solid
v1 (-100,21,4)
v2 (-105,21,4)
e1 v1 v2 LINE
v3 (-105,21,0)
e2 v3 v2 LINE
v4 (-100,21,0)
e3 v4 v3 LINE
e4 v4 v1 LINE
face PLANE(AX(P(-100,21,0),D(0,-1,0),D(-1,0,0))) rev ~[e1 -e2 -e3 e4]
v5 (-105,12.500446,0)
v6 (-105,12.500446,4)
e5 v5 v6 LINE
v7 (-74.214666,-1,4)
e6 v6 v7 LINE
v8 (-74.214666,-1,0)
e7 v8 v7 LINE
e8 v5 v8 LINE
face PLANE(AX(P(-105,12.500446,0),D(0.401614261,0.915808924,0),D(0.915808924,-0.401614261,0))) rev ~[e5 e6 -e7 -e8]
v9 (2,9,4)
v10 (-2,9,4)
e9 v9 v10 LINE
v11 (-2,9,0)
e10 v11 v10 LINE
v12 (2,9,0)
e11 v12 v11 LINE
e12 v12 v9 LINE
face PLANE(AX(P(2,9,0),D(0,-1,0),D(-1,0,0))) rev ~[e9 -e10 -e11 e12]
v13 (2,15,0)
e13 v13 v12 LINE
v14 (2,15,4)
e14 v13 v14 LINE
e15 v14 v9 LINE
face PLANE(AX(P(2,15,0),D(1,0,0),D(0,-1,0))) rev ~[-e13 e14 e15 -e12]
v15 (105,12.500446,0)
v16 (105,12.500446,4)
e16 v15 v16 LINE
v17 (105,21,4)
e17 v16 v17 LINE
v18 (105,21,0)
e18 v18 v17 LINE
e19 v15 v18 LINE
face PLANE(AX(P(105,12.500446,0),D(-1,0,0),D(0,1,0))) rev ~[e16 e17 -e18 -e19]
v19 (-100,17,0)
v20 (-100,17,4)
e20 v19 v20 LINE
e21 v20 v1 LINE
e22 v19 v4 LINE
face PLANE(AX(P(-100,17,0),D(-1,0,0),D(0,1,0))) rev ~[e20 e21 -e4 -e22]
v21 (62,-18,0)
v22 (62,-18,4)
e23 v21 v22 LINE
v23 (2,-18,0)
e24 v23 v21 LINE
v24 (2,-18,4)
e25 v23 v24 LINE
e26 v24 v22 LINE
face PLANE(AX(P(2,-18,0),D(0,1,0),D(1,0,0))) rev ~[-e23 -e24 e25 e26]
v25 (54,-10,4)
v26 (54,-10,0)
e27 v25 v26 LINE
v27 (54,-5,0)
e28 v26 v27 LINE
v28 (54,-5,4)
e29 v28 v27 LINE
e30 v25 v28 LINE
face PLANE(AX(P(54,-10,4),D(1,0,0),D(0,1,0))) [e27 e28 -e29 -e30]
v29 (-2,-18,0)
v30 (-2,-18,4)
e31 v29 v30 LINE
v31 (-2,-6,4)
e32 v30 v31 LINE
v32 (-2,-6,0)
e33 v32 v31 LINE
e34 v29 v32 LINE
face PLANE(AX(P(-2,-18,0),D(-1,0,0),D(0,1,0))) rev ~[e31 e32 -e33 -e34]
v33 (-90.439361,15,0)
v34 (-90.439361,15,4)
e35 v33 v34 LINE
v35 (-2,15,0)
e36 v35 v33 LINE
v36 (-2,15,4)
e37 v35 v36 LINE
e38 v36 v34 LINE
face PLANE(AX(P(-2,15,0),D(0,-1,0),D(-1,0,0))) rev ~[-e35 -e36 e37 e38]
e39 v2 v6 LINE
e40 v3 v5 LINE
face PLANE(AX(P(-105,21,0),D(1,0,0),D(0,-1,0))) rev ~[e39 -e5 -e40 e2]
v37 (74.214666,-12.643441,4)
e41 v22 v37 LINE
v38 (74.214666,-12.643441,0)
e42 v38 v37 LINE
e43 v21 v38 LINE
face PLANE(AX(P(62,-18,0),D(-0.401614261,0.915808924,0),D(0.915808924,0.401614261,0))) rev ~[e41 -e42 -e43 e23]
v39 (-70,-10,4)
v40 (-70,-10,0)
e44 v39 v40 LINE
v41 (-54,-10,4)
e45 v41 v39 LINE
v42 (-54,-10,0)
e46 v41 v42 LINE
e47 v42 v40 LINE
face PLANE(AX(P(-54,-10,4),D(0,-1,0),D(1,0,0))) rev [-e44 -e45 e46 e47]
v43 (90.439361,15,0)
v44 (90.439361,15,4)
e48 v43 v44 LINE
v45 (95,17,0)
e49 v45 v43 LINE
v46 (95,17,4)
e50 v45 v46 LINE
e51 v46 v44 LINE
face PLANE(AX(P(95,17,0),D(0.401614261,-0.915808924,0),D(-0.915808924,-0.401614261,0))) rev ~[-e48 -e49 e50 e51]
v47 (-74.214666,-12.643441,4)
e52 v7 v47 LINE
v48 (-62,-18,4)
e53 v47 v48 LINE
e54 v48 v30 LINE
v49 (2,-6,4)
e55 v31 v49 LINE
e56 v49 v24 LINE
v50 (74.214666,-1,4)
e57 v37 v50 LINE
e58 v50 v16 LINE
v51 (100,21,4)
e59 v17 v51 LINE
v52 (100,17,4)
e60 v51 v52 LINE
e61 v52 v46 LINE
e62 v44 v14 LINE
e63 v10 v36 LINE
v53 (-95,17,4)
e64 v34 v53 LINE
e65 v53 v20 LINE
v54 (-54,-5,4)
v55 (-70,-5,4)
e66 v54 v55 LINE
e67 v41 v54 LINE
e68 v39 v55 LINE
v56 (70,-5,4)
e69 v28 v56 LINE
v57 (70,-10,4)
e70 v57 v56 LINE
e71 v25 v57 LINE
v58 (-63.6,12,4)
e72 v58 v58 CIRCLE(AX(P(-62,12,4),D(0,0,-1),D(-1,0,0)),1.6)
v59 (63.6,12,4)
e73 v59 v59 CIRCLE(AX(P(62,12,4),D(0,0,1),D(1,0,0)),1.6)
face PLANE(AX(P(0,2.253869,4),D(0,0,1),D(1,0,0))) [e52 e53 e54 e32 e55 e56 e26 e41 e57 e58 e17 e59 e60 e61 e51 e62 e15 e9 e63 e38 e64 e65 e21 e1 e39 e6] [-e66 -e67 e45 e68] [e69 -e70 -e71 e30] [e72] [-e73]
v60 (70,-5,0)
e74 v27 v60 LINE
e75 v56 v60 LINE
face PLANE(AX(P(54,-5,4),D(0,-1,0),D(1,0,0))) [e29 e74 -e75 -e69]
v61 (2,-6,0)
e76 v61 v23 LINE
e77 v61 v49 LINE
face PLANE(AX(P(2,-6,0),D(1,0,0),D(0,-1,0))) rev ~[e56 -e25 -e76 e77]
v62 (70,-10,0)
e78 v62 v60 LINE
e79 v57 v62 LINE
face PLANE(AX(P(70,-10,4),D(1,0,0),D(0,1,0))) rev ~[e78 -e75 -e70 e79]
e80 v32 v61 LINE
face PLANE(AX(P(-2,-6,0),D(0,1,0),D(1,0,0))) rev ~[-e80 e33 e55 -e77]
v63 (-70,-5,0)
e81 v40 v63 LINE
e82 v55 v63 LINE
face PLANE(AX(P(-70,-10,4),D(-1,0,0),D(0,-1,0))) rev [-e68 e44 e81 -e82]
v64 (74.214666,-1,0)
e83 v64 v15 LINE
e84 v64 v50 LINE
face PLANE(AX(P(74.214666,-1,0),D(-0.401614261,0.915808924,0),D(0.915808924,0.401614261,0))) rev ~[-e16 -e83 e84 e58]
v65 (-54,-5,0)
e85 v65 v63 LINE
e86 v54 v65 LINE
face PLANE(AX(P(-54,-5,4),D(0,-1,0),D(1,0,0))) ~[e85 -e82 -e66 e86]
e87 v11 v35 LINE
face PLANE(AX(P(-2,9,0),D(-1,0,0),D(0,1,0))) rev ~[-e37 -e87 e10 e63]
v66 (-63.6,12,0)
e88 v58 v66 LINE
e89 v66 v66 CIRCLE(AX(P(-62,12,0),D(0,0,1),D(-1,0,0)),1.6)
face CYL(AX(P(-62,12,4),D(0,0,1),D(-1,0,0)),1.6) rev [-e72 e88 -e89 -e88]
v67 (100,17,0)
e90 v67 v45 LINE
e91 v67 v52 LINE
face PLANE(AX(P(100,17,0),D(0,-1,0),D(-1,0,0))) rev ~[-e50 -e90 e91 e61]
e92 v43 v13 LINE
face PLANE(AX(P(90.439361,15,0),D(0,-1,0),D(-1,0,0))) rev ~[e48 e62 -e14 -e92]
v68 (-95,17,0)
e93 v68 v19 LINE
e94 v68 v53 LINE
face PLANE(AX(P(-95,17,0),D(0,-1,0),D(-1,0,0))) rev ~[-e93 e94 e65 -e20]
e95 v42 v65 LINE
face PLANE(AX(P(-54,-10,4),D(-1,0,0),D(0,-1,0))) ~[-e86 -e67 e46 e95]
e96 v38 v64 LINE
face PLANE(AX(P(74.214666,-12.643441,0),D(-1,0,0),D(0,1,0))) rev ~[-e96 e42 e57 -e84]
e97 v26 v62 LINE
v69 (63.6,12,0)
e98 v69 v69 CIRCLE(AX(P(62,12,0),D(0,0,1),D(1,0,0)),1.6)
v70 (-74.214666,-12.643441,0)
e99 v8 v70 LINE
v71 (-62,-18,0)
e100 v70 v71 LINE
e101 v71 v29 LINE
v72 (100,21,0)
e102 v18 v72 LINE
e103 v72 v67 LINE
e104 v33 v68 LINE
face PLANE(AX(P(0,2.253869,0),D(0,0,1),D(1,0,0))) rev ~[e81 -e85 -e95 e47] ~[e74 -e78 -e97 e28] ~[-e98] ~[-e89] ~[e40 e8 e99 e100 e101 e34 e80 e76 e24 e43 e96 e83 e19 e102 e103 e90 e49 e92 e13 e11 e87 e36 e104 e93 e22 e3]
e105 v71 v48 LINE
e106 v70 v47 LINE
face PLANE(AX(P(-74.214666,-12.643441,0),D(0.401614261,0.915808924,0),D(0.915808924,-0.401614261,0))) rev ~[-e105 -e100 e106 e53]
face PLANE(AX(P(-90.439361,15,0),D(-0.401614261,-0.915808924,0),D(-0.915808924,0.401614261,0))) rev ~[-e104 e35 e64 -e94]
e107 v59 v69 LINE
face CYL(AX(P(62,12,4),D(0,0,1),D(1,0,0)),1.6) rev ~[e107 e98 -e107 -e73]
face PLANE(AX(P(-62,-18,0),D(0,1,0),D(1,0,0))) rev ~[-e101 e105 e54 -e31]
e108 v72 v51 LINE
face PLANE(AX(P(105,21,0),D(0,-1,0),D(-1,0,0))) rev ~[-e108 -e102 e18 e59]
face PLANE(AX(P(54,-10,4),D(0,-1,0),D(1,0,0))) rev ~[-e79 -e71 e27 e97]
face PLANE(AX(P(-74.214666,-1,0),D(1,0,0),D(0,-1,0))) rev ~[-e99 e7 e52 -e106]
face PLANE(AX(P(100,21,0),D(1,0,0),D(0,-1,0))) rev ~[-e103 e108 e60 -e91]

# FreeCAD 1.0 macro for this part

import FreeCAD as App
import Part
import Sketcher

doc = App.newDocument("Part")
body = doc.addObject("PartDesign::Body", "Body")

# Sketch on XY plane
sketch1 = doc.addObject("Sketcher::SketchObject", "Sketch")
body.addObject(sketch1)
sketch1.AttachmentSupport = (doc.XY_Plane, [""])
sketch1.MapMode = "FlatFace"
sketch1.addGeometry([
    Part.LineSegment(App.Vector(-95, 17, 0), App.Vector(-100, 17, 0)),  # 0
    Part.LineSegment(App.Vector(-100, 17, 0), App.Vector(-100, 21, 0)),  # 1
    Part.LineSegment(App.Vector(-100, 21, 0), App.Vector(-105, 21, 0)),  # 2
    Part.LineSegment(App.Vector(-105, 21, 0), App.Vector(-105, 12.5, 0)),  # 3
    Part.LineSegment(App.Vector(-105, 12.5, 0), App.Vector(-74.2, -1, 0)),  # 4
    Part.LineSegment(App.Vector(-74.2, -1, 0), App.Vector(-74.2, -12.6, 0)),  # 5
    Part.LineSegment(App.Vector(-74.2, -12.6, 0), App.Vector(-62, -18, 0)),  # 6
    Part.LineSegment(App.Vector(-62, -18, 0), App.Vector(-2, -18, 0)),  # 7
    Part.LineSegment(App.Vector(-2, -18, 0), App.Vector(-2, -6, 0)),  # 8
    Part.LineSegment(App.Vector(-2, -6, 0), App.Vector(2, -6, 0)),  # 9
    Part.LineSegment(App.Vector(2, -6, 0), App.Vector(2, -18, 0)),  # 10
    Part.LineSegment(App.Vector(2, -18, 0), App.Vector(62, -18, 0)),  # 11
    Part.LineSegment(App.Vector(62, -18, 0), App.Vector(74.2, -12.6, 0)),  # 12
    Part.LineSegment(App.Vector(74.2, -12.6, 0), App.Vector(74.2, -1, 0)),  # 13
    Part.LineSegment(App.Vector(74.2, -1, 0), App.Vector(105, 12.5, 0)),  # 14
    Part.LineSegment(App.Vector(105, 12.5, 0), App.Vector(105, 21, 0)),  # 15
    Part.LineSegment(App.Vector(105, 21, 0), App.Vector(100, 21, 0)),  # 16
    Part.LineSegment(App.Vector(100, 21, 0), App.Vector(100, 17, 0)),  # 17
    Part.LineSegment(App.Vector(100, 17, 0), App.Vector(95, 17, 0)),  # 18
    Part.LineSegment(App.Vector(95, 17, 0), App.Vector(90.4, 15, 0)),  # 19
    Part.LineSegment(App.Vector(90.4, 15, 0), App.Vector(2, 15, 0)),  # 20
    Part.LineSegment(App.Vector(2, 15, 0), App.Vector(2, 9, 0)),  # 21
    Part.LineSegment(App.Vector(2, 9, 0), App.Vector(-2, 9, 0)),  # 22
    Part.LineSegment(App.Vector(-2, 9, 0), App.Vector(-2, 15, 0)),  # 23
    Part.LineSegment(App.Vector(-2, 15, 0), App.Vector(-90.4, 15, 0)),  # 24
    Part.LineSegment(App.Vector(-90.4, 15, 0), App.Vector(-95, 17, 0)),  # 25
], False)
sketch1.addConstraint([
    Sketcher.Constraint("Coincident", 0, 2, 1, 1),
    Sketcher.Constraint("Coincident", 1, 2, 2, 1),
    Sketcher.Constraint("Coincident", 2, 2, 3, 1),
    Sketcher.Constraint("Coincident", 3, 2, 4, 1),
    Sketcher.Constraint("Coincident", 4, 2, 5, 1),
    Sketcher.Constraint("Coincident", 5, 2, 6, 1),
    Sketcher.Constraint("Coincident", 6, 2, 7, 1),
    Sketcher.Constraint("Coincident", 7, 2, 8, 1),
    Sketcher.Constraint("Coincident", 8, 2, 9, 1),
    Sketcher.Constraint("Coincident", 9, 2, 10, 1),
    Sketcher.Constraint("Coincident", 10, 2, 11, 1),
    Sketcher.Constraint("Coincident", 11, 2, 12, 1),
    Sketcher.Constraint("Coincident", 12, 2, 13, 1),
    Sketcher.Constraint("Coincident", 13, 2, 14, 1),
    Sketcher.Constraint("Coincident", 14, 2, 15, 1),
    Sketcher.Constraint("Coincident", 15, 2, 16, 1),
    Sketcher.Constraint("Coincident", 16, 2, 17, 1),
    Sketcher.Constraint("Coincident", 17, 2, 18, 1),
    Sketcher.Constraint("Coincident", 18, 2, 19, 1),
    Sketcher.Constraint("Coincident", 19, 2, 20, 1),
    Sketcher.Constraint("Coincident", 20, 2, 21, 1),
    Sketcher.Constraint("Coincident", 21, 2, 22, 1),
    Sketcher.Constraint("Coincident", 22, 2, 23, 1),
    Sketcher.Constraint("Coincident", 23, 2, 24, 1),
    Sketcher.Constraint("Coincident", 24, 2, 25, 1),
    Sketcher.Constraint("Coincident", 25, 2, 0, 1),
    Sketcher.Constraint("Horizontal", 0),
    Sketcher.Constraint("Vertical", 1),
    Sketcher.Constraint("Horizontal", 2),
    Sketcher.Constraint("Vertical", 3),
    Sketcher.Constraint("Vertical", 5),
    Sketcher.Constraint("Horizontal", 7),
    Sketcher.Constraint("Vertical", 8),
    Sketcher.Constraint("Horizontal", 9),
    Sketcher.Constraint("Vertical", 10),
    Sketcher.Constraint("Horizontal", 11),
    Sketcher.Constraint("Vertical", 13),
    Sketcher.Constraint("Vertical", 15),
    Sketcher.Constraint("Horizontal", 16),
    Sketcher.Constraint("Vertical", 17),
    Sketcher.Constraint("Horizontal", 18),
    Sketcher.Constraint("Horizontal", 20),
    Sketcher.Constraint("Vertical", 21),
    Sketcher.Constraint("Horizontal", 22),
    Sketcher.Constraint("Vertical", 23),
    Sketcher.Constraint("Horizontal", 24),
    Sketcher.Constraint("Symmetric", 7, 2, 10, 2, -2),
    Sketcher.Constraint("Symmetric", 5, 2, 12, 2, -2),
    Sketcher.Constraint("Symmetric", 3, 2, 14, 2, -2),
    Sketcher.Constraint("Symmetric", 1, 2, 16, 2, -2),
    Sketcher.Constraint("Symmetric", 20, 2, 23, 2, -2),
    Sketcher.Constraint("Symmetric", 18, 2, 25, 2, -2),
    Sketcher.Constraint("Parallel", 4, 6),
    Sketcher.Constraint("Parallel", 12, 14),
    Sketcher.Constraint("Parallel", 14, 19),
    Sketcher.Constraint("Parallel", 6, 25),
    Sketcher.Constraint("Horizontal", 4, 2, 13, 2),
    Sketcher.Constraint("Vertical", 10, 2, 20, 2),
    Sketcher.Constraint("Equal", 0, 2),
    Sketcher.Constraint("Equal", 22, 1),
    Sketcher.Constraint("DistanceX", 0, 2, 0, 1, 5.0),
    Sketcher.Constraint("DistanceX", 7, 1, 7, 2, 60.0),
    Sketcher.Constraint("DistanceX", 9, 1, 9, 2, 4.0),
    Sketcher.Constraint("DistanceY", 8, 1, 8, 2, 12.0),
    Sketcher.Constraint("DistanceY", 21, 2, 21, 1, 6.0),
    Sketcher.Constraint("DistanceX", 0, 2, -1, 1, 100.0),
    Sketcher.Constraint("DistanceY", -1, 1, 0, 2, 17.0),
    Sketcher.Constraint("DistanceY", 4, 2, -1, 1, 1.0),
    Sketcher.Constraint("DistanceY", 6, 2, -1, 1, 18.0),
    Sketcher.Constraint("DistanceY", -1, 1, 19, 2, 15.0),
    Sketcher.Constraint("DistanceX", 20, 2, 20, 1, 88.439361),
    Sketcher.Constraint("DistanceY", 5, 2, 5, 1, 11.643441),
])
pad1 = doc.addObject("PartDesign::Pad", "Pad")
body.addObject(pad1)
pad1.Profile = sketch1
pad1.Length = 4

# Sketch on XY plane
sketch2 = doc.addObject("Sketcher::SketchObject", "Sketch001")
body.addObject(sketch2)
sketch2.AttachmentSupport = (doc.XY_Plane, [""])
sketch2.MapMode = "FlatFace"
sketch2.AttachmentOffset = App.Placement(App.Vector(0, 0, 4), App.Rotation())
sketch2.addGeometry([
    Part.Circle(App.Vector(62, 12, 0), App.Vector(0, 0, 1), 1.6),  # 0
    Part.LineSegment(App.Vector(54, -5, 0), App.Vector(54, -10, 0)),  # 1
    Part.LineSegment(App.Vector(54, -10, 0), App.Vector(70, -10, 0)),  # 2
    Part.LineSegment(App.Vector(70, -10, 0), App.Vector(70, -5, 0)),  # 3
    Part.LineSegment(App.Vector(70, -5, 0), App.Vector(54, -5, 0)),  # 4
], False)
sketch2.addConstraint([
    Sketcher.Constraint("Coincident", 1, 2, 2, 1),
    Sketcher.Constraint("Coincident", 2, 2, 3, 1),
    Sketcher.Constraint("Coincident", 3, 2, 4, 1),
    Sketcher.Constraint("Coincident", 4, 2, 1, 1),
    Sketcher.Constraint("Vertical", 1),
    Sketcher.Constraint("Horizontal", 2),
    Sketcher.Constraint("Vertical", 3),
    Sketcher.Constraint("Horizontal", 4),
    Sketcher.Constraint("Diameter", 0, 3.2),
    Sketcher.Constraint("DistanceX", 2, 1, 2, 2, 16.0),
    Sketcher.Constraint("DistanceY", 1, 2, 1, 1, 5.0),
    Sketcher.Constraint("DistanceX", -1, 1, 0, 3, 62.0),
    Sketcher.Constraint("DistanceY", -1, 1, 0, 3, 12.0),
    Sketcher.Constraint("DistanceX", -1, 1, 1, 2, 54.0),
    Sketcher.Constraint("DistanceY", 1, 2, -1, 1, 10.0),
])
pocket1 = doc.addObject("PartDesign::Pocket", "Pocket")
body.addObject(pocket1)
pocket1.Profile = sketch2
pocket1.Type = "ThroughAll"
doc.recompute()

mirrored = doc.addObject("PartDesign::Mirrored", "Mirrored")
body.addObject(mirrored)
mirrored.Originals = [pocket1]
mirrored.MirrorPlane = (doc.YZ_Plane, [""])
body.Tip = mirrored

doc.recompute()
